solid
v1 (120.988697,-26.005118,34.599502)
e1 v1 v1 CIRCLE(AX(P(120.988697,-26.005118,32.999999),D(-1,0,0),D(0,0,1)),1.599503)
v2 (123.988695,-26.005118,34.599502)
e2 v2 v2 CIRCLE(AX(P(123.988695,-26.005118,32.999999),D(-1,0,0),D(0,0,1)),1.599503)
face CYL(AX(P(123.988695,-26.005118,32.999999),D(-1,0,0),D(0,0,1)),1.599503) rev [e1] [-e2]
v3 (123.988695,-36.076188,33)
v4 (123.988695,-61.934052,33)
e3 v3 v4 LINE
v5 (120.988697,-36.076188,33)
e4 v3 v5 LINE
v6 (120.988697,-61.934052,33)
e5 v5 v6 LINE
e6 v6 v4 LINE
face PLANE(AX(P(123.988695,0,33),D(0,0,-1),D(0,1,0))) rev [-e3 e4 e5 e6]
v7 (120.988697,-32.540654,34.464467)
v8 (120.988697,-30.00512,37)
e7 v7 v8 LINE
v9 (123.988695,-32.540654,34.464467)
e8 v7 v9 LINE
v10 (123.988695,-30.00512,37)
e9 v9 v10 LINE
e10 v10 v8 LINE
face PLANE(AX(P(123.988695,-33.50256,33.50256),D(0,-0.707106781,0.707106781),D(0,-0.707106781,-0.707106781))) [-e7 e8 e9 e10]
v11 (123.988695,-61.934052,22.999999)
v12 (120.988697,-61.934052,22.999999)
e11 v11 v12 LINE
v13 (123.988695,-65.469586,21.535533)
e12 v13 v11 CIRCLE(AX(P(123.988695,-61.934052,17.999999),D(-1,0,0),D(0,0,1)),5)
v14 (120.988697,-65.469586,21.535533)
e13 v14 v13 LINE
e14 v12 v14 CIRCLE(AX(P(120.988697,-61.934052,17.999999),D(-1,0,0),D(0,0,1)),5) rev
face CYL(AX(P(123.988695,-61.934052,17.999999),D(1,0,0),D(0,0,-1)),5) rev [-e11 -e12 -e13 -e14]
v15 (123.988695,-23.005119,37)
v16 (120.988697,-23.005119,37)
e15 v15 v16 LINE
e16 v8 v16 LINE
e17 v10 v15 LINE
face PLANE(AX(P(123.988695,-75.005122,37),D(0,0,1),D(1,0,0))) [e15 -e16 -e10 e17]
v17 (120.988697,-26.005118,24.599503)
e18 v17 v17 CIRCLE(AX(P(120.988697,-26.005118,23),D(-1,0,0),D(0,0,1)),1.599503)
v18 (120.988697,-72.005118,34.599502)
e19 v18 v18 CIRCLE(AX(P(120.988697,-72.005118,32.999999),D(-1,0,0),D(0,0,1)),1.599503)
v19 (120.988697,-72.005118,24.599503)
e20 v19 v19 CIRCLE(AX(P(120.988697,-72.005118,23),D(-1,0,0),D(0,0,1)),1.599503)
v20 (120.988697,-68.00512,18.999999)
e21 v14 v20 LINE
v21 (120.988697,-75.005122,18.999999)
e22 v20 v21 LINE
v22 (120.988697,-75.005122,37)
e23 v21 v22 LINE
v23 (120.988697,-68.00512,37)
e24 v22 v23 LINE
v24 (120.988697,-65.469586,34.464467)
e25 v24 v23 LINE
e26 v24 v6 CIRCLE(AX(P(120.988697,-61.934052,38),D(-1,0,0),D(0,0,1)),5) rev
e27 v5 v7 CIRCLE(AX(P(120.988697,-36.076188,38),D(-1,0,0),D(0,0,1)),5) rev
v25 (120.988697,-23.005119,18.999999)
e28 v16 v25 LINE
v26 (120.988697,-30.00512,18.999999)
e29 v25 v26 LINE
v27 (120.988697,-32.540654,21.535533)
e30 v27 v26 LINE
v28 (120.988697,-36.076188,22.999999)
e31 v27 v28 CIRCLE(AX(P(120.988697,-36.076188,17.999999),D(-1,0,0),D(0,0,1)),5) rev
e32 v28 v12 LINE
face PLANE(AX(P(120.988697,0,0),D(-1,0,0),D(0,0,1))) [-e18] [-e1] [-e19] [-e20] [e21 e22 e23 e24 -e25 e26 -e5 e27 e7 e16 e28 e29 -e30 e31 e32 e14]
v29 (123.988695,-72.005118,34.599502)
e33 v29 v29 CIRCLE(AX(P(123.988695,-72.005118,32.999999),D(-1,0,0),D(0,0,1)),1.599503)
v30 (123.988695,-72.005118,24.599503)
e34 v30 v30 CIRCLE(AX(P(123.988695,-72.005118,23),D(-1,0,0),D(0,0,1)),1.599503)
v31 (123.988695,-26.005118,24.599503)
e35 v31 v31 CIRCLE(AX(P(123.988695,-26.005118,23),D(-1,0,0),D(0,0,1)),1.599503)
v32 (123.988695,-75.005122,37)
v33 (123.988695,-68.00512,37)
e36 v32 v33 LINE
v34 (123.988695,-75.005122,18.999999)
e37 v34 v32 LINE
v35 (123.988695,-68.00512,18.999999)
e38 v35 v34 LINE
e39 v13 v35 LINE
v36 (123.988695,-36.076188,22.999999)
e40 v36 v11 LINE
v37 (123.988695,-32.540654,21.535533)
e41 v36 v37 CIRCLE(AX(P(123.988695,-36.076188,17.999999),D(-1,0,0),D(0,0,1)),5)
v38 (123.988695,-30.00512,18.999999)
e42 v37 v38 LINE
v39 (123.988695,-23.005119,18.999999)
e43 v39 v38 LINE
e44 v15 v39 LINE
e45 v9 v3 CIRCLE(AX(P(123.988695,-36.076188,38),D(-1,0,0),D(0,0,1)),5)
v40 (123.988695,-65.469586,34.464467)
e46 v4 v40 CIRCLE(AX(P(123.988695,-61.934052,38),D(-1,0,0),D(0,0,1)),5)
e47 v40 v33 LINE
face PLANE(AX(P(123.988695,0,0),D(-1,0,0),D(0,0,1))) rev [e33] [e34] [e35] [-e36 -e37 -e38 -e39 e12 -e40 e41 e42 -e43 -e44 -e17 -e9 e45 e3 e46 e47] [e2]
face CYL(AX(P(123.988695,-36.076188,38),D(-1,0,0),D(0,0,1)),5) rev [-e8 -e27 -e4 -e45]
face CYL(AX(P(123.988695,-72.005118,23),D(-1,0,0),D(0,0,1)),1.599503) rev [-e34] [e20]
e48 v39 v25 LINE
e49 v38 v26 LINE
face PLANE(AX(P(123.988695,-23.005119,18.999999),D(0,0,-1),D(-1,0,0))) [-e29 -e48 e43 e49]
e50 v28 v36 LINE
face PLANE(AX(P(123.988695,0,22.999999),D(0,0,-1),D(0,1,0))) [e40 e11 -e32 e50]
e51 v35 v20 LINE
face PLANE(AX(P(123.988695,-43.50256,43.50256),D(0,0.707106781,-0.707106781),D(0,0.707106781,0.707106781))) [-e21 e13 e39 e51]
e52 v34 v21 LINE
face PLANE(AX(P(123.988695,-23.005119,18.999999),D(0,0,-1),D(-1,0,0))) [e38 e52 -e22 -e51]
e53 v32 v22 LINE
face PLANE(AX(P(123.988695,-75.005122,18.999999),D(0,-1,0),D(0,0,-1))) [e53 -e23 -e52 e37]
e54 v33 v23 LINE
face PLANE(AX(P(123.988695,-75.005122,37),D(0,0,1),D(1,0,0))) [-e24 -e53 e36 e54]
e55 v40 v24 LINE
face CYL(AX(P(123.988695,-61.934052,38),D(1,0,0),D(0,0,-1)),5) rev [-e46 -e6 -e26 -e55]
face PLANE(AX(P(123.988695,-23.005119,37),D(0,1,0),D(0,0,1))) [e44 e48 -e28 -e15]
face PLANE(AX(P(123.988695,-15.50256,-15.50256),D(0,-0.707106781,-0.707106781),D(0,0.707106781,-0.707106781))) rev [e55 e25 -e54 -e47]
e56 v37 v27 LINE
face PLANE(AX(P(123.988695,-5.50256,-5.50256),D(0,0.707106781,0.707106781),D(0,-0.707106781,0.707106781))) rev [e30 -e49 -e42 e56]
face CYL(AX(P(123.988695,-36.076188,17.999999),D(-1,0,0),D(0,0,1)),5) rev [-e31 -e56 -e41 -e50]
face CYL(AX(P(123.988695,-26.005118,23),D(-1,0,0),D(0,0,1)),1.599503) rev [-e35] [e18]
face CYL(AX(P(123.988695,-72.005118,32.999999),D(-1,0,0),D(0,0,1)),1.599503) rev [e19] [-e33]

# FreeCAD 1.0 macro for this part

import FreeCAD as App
import Part
import Sketcher


def edges_at(feature, points):
    """Names of the edges that pass closest to the given points."""
    edges = feature.Shape.Edges
    near = lambda p: min(range(len(edges)), key=lambda i: edges[i].distToShape(Part.Vertex(*p))[0])
    return sorted({f"Edge{near(p) + 1}" for p in points})

doc = App.newDocument("Part")
body = doc.addObject("PartDesign::Body", "Body")

# Sketch on YZ plane
sketch1 = body.newObject("Sketcher::SketchObject", "Sketch")
sketch1.AttachmentSupport = (doc.getObject("YZ_Plane"), [""])
sketch1.MapMode = "FlatFace"
sketch1.AttachmentOffset = App.Placement(App.Vector(0, 0, 120.988697), App.Rotation())
sketch1.addGeometry(Part.LineSegment(App.Vector(-23, 37, 0), App.Vector(-23, 19, 0)), False)
sketch1.addGeometry(Part.LineSegment(App.Vector(-23, 19, 0), App.Vector(-75, 19, 0)), False)
sketch1.addGeometry(Part.LineSegment(App.Vector(-75, 19, 0), App.Vector(-75, 37, 0)), False)
sketch1.addGeometry(Part.LineSegment(App.Vector(-75, 37, 0), App.Vector(-23, 37, 0)), False)
sketch1.addGeometry(Part.Circle(App.Vector(-26, 23, 0), App.Vector(0, 0, 1), 1.6), False)
sketch1.addGeometry(Part.Circle(App.Vector(-72, 23, 0), App.Vector(0, 0, 1), 1.6), False)
sketch1.addGeometry(Part.Circle(App.Vector(-26, 33, 0), App.Vector(0, 0, 1), 1.6), False)
sketch1.addGeometry(Part.Circle(App.Vector(-72, 33, 0), App.Vector(0, 0, 1), 1.6), False)
sketch1.addConstraint(Sketcher.Constraint("Coincident", 0, 2, 1, 1))
sketch1.addConstraint(Sketcher.Constraint("Coincident", 1, 2, 2, 1))
sketch1.addConstraint(Sketcher.Constraint("Coincident", 2, 2, 3, 1))
sketch1.addConstraint(Sketcher.Constraint("Coincident", 3, 2, 0, 1))
sketch1.addConstraint(Sketcher.Constraint("Vertical", 0))
sketch1.addConstraint(Sketcher.Constraint("Horizontal", 1))
sketch1.addConstraint(Sketcher.Constraint("Vertical", 2))
sketch1.addConstraint(Sketcher.Constraint("Horizontal", 3))
sketch1.addConstraint(Sketcher.Constraint("Equal", 4, 5))
sketch1.addConstraint(Sketcher.Constraint("Equal", 5, 6))
sketch1.addConstraint(Sketcher.Constraint("Equal", 6, 7))
sketch1.addConstraint(Sketcher.Constraint("Horizontal", 4, 3, 5, 3))
sketch1.addConstraint(Sketcher.Constraint("Horizontal", 6, 3, 7, 3))
sketch1.addConstraint(Sketcher.Constraint("Vertical", 4, 3, 6, 3))
sketch1.addConstraint(Sketcher.Constraint("Vertical", 5, 3, 7, 3))
sketch1.addConstraint(Sketcher.Constraint("DistanceY", 0, 2, 0, 1, 18.000001))
sketch1.addConstraint(Sketcher.Constraint("DistanceY", -1, 1, 4, 3, 23.0))
sketch1.addConstraint(Sketcher.Constraint("DistanceY", -1, 1, 6, 3, 32.999999))
sketch1.addConstraint(Sketcher.Constraint("DistanceY", -1, 1, 0, 2, 18.999999))
sketch1.addConstraint(Sketcher.Constraint("DistanceX", 5, 3, 4, 3, 46.0))
sketch1.addConstraint(Sketcher.Constraint("DistanceX", 4, 3, 0, 2, 3.0))
sketch1.addConstraint(Sketcher.Constraint("Diameter", 4, 3.199006))
sketch1.addConstraint(Sketcher.Constraint("DistanceX", 1, 2, 1, 1, 52.000003))
sketch1.addConstraint(Sketcher.Constraint("DistanceX", 4, 3, -1, 1, 26.005118))
pad1 = body.newObject("PartDesign::Pad", "Pad")
pad1.Profile = sketch1
pad1.Length = 2.999999

# Sketch on YZ plane
sketch2 = body.newObject("Sketcher::SketchObject", "Sketch001")
sketch2.AttachmentSupport = (doc.getObject("YZ_Plane"), [""])
sketch2.MapMode = "FlatFace"
sketch2.AttachmentOffset = App.Placement(App.Vector(0, 0, 120.988697), App.Rotation())
sketch2.addGeometry(Part.LineSegment(App.Vector(-34, 33, 0), App.Vector(-64, 33, 0)), False)
sketch2.addGeometry(Part.LineSegment(App.Vector(-64, 33, 0), App.Vector(-68, 37, 0)), False)
sketch2.addGeometry(Part.LineSegment(App.Vector(-68, 37, 0), App.Vector(-30, 37, 0)), False)
sketch2.addGeometry(Part.LineSegment(App.Vector(-30, 37, 0), App.Vector(-34, 33, 0)), False)
sketch2.addGeometry(Part.LineSegment(App.Vector(-34, 23, 0), App.Vector(-30, 19, 0)), False)
sketch2.addGeometry(Part.LineSegment(App.Vector(-30, 19, 0), App.Vector(-68, 19, 0)), False)
sketch2.addGeometry(Part.LineSegment(App.Vector(-68, 19, 0), App.Vector(-64, 23, 0)), False)
sketch2.addGeometry(Part.LineSegment(App.Vector(-64, 23, 0), App.Vector(-34, 23, 0)), False)
sketch2.addConstraint(Sketcher.Constraint("Coincident", 0, 2, 1, 1))
sketch2.addConstraint(Sketcher.Constraint("Coincident", 1, 2, 2, 1))
sketch2.addConstraint(Sketcher.Constraint("Coincident", 2, 2, 3, 1))
sketch2.addConstraint(Sketcher.Constraint("Coincident", 3, 2, 0, 1))
sketch2.addConstraint(Sketcher.Constraint("Coincident", 4, 2, 5, 1))
sketch2.addConstraint(Sketcher.Constraint("Coincident", 5, 2, 6, 1))
sketch2.addConstraint(Sketcher.Constraint("Coincident", 6, 2, 7, 1))
sketch2.addConstraint(Sketcher.Constraint("Coincident", 7, 2, 4, 1))
sketch2.addConstraint(Sketcher.Constraint("Horizontal", 0))
sketch2.addConstraint(Sketcher.Constraint("Horizontal", 2))
sketch2.addConstraint(Sketcher.Constraint("Horizontal", 5))
sketch2.addConstraint(Sketcher.Constraint("Horizontal", 7))
sketch2.addConstraint(Sketcher.Constraint("Perpendicular", 1, 3))
sketch2.addConstraint(Sketcher.Constraint("Perpendicular", 3, 4))
sketch2.addConstraint(Sketcher.Constraint("Perpendicular", 4, 6))
sketch2.addConstraint(Sketcher.Constraint("Vertical", 2, 2, 4, 2))
sketch2.addConstraint(Sketcher.Constraint("Vertical", 1, 2, 5, 2))
sketch2.addConstraint(Sketcher.Constraint("Vertical", 0, 2, 6, 2))
sketch2.addConstraint(Sketcher.Constraint("Vertical", 3, 2, 7, 2))
sketch2.addConstraint(Sketcher.Constraint("DistanceX", 0, 2, 0, 1, 30.0))
sketch2.addConstraint(Sketcher.Constraint("DistanceX", 2, 1, 2, 2, 38.0))
sketch2.addConstraint(Sketcher.Constraint("DistanceY", -1, 1, 0, 2, 33.0))
sketch2.addConstraint(Sketcher.Constraint("DistanceY", -1, 1, 4, 2, 18.999999))
sketch2.addConstraint(Sketcher.Constraint("DistanceX", 0, 2, -1, 1, 64.00512))
pocket1 = body.newObject("PartDesign::Pocket", "Pocket")
pocket1.Profile = sketch2
pocket1.Type = "ThroughAll"
pocket1.Reversed = True
doc.recompute()

fillet = body.newObject("PartDesign::Fillet", "Fillet")
fillet.Base = (pocket1, edges_at(pocket1, [
    (122.489, -34.005, 23),
    (122.489, -64.005, 23),
    (122.489, -64.005, 33),
    (122.489, -34.005, 33),
]))
fillet.Radius = 5

doc.recompute()
